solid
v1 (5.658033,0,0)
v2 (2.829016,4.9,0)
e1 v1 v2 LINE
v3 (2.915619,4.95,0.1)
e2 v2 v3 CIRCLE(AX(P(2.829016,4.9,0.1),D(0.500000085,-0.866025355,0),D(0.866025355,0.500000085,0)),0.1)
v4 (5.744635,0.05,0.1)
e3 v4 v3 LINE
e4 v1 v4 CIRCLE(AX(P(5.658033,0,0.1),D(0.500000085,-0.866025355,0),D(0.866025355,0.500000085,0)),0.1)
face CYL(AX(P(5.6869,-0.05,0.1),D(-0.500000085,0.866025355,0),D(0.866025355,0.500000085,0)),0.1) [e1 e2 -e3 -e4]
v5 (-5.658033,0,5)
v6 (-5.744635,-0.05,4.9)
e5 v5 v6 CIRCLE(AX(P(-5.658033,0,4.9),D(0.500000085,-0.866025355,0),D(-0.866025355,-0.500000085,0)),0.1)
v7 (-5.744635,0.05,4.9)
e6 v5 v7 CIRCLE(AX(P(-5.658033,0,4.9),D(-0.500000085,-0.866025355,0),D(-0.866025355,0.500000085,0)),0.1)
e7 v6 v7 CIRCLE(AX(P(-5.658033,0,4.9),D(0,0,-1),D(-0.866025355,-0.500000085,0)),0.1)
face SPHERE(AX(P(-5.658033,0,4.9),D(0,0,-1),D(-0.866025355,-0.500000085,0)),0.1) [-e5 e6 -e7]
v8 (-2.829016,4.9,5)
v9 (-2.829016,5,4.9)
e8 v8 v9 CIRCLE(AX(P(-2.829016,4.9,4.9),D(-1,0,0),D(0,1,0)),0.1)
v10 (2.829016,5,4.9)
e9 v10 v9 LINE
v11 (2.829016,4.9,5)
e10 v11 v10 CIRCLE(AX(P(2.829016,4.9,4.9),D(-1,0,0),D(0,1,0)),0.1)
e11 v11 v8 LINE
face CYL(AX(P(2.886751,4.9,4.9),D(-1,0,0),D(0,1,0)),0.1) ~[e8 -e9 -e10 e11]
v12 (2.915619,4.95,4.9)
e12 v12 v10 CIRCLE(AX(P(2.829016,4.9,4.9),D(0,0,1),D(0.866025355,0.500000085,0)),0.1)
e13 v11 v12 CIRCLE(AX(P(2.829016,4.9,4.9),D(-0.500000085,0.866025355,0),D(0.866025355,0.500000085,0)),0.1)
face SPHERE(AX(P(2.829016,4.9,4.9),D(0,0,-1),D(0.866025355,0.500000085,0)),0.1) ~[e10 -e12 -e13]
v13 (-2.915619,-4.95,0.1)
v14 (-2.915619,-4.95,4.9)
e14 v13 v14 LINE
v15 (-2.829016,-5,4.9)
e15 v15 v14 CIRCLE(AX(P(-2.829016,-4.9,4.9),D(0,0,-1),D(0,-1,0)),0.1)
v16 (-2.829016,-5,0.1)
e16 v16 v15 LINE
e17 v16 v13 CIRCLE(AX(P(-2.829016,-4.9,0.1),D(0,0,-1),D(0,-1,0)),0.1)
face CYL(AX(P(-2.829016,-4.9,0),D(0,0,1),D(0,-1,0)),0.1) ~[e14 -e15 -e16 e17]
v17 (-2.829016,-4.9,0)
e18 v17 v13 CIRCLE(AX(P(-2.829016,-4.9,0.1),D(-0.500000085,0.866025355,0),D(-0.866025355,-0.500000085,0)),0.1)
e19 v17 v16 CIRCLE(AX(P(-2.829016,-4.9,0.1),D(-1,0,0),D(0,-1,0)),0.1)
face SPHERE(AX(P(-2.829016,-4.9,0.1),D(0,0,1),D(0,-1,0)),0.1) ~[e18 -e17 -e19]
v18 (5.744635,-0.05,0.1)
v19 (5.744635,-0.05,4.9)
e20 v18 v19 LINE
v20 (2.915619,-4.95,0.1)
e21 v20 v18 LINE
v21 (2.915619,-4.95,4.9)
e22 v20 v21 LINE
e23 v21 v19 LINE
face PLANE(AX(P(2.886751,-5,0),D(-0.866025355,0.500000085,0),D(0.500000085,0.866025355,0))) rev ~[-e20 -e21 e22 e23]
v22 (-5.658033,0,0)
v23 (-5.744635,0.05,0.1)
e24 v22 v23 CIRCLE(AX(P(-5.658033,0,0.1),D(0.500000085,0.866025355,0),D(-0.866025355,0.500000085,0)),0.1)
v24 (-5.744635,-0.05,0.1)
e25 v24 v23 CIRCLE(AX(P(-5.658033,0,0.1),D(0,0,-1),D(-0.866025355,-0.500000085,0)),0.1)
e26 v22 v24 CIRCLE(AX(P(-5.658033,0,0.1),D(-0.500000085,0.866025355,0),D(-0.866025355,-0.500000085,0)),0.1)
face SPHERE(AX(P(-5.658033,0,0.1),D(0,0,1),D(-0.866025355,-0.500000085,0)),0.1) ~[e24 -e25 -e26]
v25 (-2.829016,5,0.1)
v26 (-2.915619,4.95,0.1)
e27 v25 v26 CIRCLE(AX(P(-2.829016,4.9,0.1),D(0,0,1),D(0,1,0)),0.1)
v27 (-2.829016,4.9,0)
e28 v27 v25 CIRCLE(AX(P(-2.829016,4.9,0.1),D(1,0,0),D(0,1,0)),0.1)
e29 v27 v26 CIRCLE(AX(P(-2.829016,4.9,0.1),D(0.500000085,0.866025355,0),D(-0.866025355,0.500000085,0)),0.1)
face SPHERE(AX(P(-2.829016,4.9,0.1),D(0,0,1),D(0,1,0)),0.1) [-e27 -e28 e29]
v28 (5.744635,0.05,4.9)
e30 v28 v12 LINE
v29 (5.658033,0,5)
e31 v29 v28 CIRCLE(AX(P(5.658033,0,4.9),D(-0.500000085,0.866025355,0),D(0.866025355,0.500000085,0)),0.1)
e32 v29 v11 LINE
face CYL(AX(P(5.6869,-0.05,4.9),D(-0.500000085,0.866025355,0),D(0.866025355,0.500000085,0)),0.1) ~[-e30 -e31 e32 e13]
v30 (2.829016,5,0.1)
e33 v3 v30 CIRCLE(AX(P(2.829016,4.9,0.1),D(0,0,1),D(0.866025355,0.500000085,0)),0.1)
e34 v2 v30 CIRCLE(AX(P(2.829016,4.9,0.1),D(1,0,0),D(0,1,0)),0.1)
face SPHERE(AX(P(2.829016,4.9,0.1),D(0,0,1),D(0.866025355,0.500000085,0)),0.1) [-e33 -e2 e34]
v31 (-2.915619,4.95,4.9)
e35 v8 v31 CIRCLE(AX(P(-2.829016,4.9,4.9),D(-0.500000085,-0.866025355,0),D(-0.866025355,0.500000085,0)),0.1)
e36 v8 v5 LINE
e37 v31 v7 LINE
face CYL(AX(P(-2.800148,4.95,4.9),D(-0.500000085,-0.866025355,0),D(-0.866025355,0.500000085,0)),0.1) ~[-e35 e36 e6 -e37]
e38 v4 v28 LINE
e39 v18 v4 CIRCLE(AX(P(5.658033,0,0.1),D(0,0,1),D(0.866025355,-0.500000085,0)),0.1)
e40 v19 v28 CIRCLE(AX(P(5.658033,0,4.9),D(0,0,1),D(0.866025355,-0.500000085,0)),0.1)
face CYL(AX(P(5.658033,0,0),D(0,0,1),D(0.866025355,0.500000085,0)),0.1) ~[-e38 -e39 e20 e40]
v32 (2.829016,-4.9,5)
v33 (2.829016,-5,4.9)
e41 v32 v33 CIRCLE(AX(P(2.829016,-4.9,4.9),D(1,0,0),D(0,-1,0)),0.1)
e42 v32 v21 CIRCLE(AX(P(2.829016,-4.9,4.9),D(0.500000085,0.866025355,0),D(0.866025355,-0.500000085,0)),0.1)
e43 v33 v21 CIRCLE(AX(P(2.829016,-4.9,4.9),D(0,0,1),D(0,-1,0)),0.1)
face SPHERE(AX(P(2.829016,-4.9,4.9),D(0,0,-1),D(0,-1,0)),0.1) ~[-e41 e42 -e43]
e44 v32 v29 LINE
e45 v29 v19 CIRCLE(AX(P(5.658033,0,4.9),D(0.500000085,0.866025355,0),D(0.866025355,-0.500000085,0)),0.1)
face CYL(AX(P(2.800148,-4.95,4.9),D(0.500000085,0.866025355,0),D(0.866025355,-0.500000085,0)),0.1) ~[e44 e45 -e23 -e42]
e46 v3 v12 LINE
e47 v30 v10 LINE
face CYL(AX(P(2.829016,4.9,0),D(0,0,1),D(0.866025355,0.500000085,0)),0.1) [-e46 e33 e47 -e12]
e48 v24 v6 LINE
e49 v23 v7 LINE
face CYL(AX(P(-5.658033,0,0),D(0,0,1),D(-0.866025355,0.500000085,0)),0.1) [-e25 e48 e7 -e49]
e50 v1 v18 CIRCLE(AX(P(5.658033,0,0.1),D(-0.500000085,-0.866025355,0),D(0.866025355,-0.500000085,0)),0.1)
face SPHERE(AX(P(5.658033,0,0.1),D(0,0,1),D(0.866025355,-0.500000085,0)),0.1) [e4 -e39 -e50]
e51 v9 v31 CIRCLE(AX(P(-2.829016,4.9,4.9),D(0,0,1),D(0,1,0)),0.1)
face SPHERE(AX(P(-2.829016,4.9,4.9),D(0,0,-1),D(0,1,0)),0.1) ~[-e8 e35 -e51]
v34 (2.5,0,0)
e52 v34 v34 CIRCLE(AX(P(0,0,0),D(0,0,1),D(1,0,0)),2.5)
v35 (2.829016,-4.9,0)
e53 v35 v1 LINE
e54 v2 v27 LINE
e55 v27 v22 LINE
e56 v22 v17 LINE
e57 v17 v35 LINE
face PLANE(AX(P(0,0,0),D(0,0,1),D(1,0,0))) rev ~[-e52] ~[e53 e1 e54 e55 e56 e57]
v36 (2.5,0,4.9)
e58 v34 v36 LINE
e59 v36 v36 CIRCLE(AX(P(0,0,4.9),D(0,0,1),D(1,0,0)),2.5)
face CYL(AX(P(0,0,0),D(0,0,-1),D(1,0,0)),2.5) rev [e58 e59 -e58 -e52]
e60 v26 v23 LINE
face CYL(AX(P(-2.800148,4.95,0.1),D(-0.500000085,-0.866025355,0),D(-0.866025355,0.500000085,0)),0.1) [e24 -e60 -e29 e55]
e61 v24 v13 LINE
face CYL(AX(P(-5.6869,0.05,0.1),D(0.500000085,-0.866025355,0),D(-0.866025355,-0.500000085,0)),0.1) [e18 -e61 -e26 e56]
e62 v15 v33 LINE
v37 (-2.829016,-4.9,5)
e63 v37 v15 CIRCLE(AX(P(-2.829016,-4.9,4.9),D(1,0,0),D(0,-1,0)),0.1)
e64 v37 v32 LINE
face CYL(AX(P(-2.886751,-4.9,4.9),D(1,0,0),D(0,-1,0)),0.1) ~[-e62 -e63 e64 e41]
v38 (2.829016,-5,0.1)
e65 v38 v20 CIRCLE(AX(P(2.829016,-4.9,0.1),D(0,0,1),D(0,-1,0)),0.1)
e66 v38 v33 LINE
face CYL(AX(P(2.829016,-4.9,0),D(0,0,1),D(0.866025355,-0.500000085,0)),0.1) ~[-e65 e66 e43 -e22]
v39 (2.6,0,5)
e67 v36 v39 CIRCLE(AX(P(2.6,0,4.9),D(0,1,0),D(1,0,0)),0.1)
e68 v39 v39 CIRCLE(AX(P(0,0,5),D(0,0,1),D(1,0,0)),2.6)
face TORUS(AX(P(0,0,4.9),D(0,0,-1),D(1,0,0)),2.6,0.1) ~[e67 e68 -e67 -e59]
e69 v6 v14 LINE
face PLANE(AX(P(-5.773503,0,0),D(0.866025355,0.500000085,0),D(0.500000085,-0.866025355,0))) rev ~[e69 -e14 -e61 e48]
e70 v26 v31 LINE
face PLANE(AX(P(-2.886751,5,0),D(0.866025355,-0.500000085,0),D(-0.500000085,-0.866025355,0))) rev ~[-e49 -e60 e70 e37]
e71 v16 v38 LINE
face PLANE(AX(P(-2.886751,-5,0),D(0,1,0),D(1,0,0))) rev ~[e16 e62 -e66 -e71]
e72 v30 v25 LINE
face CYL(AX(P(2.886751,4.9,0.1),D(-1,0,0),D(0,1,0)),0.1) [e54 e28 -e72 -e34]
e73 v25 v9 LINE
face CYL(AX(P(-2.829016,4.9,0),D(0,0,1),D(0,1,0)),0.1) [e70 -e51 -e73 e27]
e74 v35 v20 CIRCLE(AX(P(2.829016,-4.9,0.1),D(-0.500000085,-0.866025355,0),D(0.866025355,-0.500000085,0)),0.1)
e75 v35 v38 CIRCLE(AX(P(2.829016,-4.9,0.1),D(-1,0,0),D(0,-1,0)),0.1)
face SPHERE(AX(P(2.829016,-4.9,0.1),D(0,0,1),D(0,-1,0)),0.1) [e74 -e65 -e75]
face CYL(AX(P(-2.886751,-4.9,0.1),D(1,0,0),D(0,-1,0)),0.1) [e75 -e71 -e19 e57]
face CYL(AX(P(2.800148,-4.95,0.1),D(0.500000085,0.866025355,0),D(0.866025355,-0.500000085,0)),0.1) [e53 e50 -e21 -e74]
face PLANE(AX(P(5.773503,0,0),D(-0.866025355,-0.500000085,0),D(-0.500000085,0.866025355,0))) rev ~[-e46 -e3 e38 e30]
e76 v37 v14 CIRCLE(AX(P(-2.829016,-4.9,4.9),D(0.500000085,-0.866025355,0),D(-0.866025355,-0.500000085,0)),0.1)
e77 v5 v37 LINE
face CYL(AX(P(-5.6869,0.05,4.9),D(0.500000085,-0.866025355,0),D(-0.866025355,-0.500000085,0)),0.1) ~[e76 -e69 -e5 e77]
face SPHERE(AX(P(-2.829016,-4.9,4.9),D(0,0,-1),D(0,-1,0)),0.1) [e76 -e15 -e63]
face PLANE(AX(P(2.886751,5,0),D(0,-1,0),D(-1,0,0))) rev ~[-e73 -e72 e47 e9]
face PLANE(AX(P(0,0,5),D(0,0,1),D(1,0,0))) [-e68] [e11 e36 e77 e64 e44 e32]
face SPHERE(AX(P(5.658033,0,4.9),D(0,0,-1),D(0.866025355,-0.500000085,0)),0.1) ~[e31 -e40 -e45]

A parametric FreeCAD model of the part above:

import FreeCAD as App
import Part
import Sketcher
from FreeCAD import Vector
Q = App.Units.Quantity


def edges_at(feature, points):
    """Names of the edges that pass closest to the given points."""
    edges = feature.Shape.Edges
    near = lambda p: min(range(len(edges)), key=lambda i: edges[i].distToShape(Part.Vertex(*p))[0])
    return sorted({f"Edge{near(p) + 1}" for p in points})

doc = App.newDocument("Part")
params = doc.addObject("Spreadsheet::Sheet", "Params")
for row, (alias, value) in enumerate([
    ("sketch1_diameter", "5 mm"),
    ("pad1_length", "5 mm"),
    ("fillet_radius", "0.1 mm"),
], start=1):
    params.set(f"A{row}", alias)
    params.set(f"B{row}", "=" + value)
    params.setAlias(f"B{row}", alias)

body = doc.addObject("PartDesign::Body", "Body")

# Sketch on XY plane
sketch1 = body.newObject("Sketcher::SketchObject", "Sketch")
sketch1.AttachmentSupport = (doc.getObject("XY_Plane"), [""])
sketch1.MapMode = "FlatFace"
sketch1.addGeometry([
    Part.LineSegment(Vector(5.8, 0, 0), Vector(2.9, 5, 0)),  # 0
    Part.LineSegment(Vector(2.9, 5, 0), Vector(-2.9, 5, 0)),  # 1
    Part.LineSegment(Vector(-2.9, 5, 0), Vector(-5.8, 0, 0)),  # 2
    Part.LineSegment(Vector(-5.8, 0, 0), Vector(-2.9, -5, 0)),  # 3
    Part.LineSegment(Vector(-2.9, -5, 0), Vector(2.9, -5, 0)),  # 4
    Part.LineSegment(Vector(2.9, -5, 0), Vector(5.8, 0, 0)),  # 5
    Part.Circle(Vector(0, 0, 0), Vector(0, 0, 1), 2.5),  # 6
], False)
sketch1.addConstraint([
    Sketcher.Constraint("Coincident", 0, 2, 1, 1),
    Sketcher.Constraint("Coincident", 1, 2, 2, 1),
    Sketcher.Constraint("Coincident", 2, 2, 3, 1),
    Sketcher.Constraint("Coincident", 3, 2, 4, 1),
    Sketcher.Constraint("Coincident", 4, 2, 5, 1),
    Sketcher.Constraint("Coincident", 5, 2, 0, 1),
    Sketcher.Constraint("Horizontal", 1),
    Sketcher.Constraint("Horizontal", 4),
    Sketcher.Constraint("Coincident", 6, 3, -1, 1),
    Sketcher.Constraint("Symmetric", 0, 2, 3, 2, -1, 1),
    Sketcher.Constraint("Symmetric", 2, 2, 5, 2, -1, 1),
    Sketcher.Constraint("PointOnObject", 2, 2, -1),
    Sketcher.Constraint("Parallel", 2, 5),
    Sketcher.Constraint("Vertical", 1, 2, 3, 2),
    Sketcher.Constraint("Diameter", 6, Q("5 mm")),
    Sketcher.Constraint("Angle", 0, Q("120.000006 deg")),
    Sketcher.Constraint("DistanceY", -1, 1, 0, 2, Q("5 mm")),
    Sketcher.Constraint("DistanceX", 1, 2, 1, 1, Q("5.773502 mm")),
])
sketch1.setExpression("Constraints[14]", "Params.sketch1_diameter")
pad1 = body.newObject("PartDesign::Pad", "Pad")
pad1.Profile = sketch1
pad1.setExpression("Length", "Params.pad1_length")
doc.recompute()

fillet = body.newObject("PartDesign::Fillet", "Fillet")
fillet.Base = (pad1, edges_at(pad1, [
    (-2.887, -5, 2.5),
    (2.887, -5, 2.5),
    (0, -5, 0),
    (0, -5, 5),
    (-5.774, 0, 2.5),
    (-4.33, -2.5, 0),
    (-4.33, -2.5, 5),
    (5.774, 0, 2.5),
    (4.33, -2.5, 0),
    (4.33, -2.5, 5),
    (2.887, 5, 2.5),
    (4.33, 2.5, 0),
    (4.33, 2.5, 5),
    (-2.887, 5, 2.5),
    (0, 5, 0),
    (0, 5, 5),
    (-4.33, 2.5, 0),
    (-4.33, 2.5, 5),
    (-2.5, 0, 5),
]))
fillet.setExpression("Radius", "Params.fillet_radius")

doc.recompute()
